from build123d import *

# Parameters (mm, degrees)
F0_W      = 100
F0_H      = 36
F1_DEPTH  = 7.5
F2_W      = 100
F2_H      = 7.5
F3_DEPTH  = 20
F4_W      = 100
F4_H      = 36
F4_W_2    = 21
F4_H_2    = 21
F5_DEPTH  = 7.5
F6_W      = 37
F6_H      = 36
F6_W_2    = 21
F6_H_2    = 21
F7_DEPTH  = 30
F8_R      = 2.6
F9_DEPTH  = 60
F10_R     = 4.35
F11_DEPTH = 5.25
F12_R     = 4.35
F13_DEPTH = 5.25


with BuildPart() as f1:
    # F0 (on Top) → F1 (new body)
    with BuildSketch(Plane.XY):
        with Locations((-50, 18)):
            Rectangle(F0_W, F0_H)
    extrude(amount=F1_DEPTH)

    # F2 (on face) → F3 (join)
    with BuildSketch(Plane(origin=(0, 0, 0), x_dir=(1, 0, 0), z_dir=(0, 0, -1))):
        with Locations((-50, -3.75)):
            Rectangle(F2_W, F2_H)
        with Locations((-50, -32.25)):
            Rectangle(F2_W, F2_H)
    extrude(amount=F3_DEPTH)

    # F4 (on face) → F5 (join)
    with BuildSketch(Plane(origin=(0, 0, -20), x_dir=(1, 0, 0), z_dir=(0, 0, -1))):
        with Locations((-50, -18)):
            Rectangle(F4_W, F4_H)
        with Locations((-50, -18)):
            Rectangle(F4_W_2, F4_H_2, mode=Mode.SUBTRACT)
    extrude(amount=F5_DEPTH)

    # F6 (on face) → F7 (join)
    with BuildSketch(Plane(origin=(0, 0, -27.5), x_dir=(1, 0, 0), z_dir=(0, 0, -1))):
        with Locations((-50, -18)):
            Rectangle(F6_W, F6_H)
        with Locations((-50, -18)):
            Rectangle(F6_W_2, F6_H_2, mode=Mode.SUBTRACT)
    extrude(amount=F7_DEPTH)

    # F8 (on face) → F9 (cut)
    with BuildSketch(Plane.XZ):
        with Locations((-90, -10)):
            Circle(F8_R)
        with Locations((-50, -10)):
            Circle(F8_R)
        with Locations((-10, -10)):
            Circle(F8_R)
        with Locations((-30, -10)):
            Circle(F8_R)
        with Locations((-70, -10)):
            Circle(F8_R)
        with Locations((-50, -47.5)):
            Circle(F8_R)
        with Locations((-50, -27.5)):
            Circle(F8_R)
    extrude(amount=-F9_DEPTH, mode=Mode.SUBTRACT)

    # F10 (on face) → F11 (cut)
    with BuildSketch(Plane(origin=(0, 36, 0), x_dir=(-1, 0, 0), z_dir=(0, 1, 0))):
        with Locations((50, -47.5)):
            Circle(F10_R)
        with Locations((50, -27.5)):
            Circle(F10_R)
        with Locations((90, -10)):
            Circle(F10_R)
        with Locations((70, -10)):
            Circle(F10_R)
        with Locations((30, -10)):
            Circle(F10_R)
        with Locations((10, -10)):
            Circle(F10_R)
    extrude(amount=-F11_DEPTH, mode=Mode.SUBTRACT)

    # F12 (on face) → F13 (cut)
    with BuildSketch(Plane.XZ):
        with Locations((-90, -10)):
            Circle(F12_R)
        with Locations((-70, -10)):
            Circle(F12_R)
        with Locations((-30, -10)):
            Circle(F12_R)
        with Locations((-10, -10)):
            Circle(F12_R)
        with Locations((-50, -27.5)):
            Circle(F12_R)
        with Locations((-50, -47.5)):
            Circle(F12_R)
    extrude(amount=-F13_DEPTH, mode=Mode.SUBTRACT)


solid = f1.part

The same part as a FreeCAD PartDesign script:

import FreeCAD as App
import Part
import Sketcher
Q = App.Units.Quantity


def add_polygon(sketch, points):
    """Adds a closed chain of lines whose ends are joined by coincident constraints."""
    first, n = sketch.GeometryCount, len(points)
    for a, b in zip(points, points[1:] + points[:1]):
        sketch.addGeometry(Part.LineSegment(App.Vector(*a, 0), App.Vector(*b, 0)), False)
    for i in range(n):
        sketch.addConstraint(Sketcher.Constraint("Coincident", first + i, 2, first + (i + 1) % n, 1))

doc = App.newDocument("Part")
body = doc.addObject("PartDesign::Body", "Body")

# Sketch on XY plane
sketch1 = body.newObject("Sketcher::SketchObject", "Sketch")
sketch1.AttachmentSupport = (doc.getObject("XY_Plane"), [""])
sketch1.MapMode = "FlatFace"
add_polygon(sketch1, [(-100, 36), (-100, 0), (0, 0), (0, 36)])  # lines 0-3
sketch1.addConstraint([
    Sketcher.Constraint("Vertical", 0),
    Sketcher.Constraint("Horizontal", 1),
    Sketcher.Constraint("Vertical", 2),
    Sketcher.Constraint("Horizontal", 3),
    Sketcher.Constraint("Coincident", 1, 2, -1, 1),
    Sketcher.Constraint("DistanceX", 1, 1, 1, 2, Q("100 mm")),
    Sketcher.Constraint("DistanceY", 0, 2, 0, 1, Q("36 mm")),
])
pad1 = body.newObject("PartDesign::Pad", "Pad")
pad1.Profile = sketch1
pad1.Length = 7.5

# Sketch on XY plane
sketch2 = body.newObject("Sketcher::SketchObject", "Sketch001")
sketch2.AttachmentSupport = (doc.getObject("XY_Plane"), [""])
sketch2.MapMode = "FlatFace"
add_polygon(sketch2, [(-100, 0), (-100, 7.5), (0, 7.5), (0, 0)])  # lines 0-3
add_polygon(sketch2, [(-100, 28.5), (-100, 36), (0, 36), (0, 28.5)])  # lines 4-7
sketch2.addConstraint([
    Sketcher.Constraint("Vertical", 0),
    Sketcher.Constraint("Horizontal", 1),
    Sketcher.Constraint("Vertical", 2),
    Sketcher.Constraint("Horizontal", 3),
    Sketcher.Constraint("Vertical", 4),
    Sketcher.Constraint("Horizontal", 5),
    Sketcher.Constraint("Vertical", 6),
    Sketcher.Constraint("Horizontal", 7),
    Sketcher.Constraint("Coincident", 2, 2, -1, 1),
    Sketcher.Constraint("PointOnObject", 5, 2, -2),
    Sketcher.Constraint("Vertical", 3, 2, 4, 2),
    Sketcher.Constraint("Equal", 2, 4),
    Sketcher.Constraint("DistanceX", 1, 1, 1, 2, Q("100 mm")),
    Sketcher.Constraint("DistanceY", 0, 1, 0, 2, Q("7.5 mm")),
    Sketcher.Constraint("DistanceY", -1, 1, 4, 2, Q("36 mm")),
])
pad2 = body.newObject("PartDesign::Pad", "Pad001")
pad2.Profile = sketch2
pad2.Length = 20
pad2.Reversed = True

# Sketch on XY plane
sketch3 = body.newObject("Sketcher::SketchObject", "Sketch002")
sketch3.AttachmentSupport = (doc.getObject("XY_Plane"), [""])
sketch3.MapMode = "FlatFace"
sketch3.AttachmentOffset = App.Placement(App.Vector(0, 0, -20), App.Rotation())
add_polygon(sketch3, [(-100, 0), (-100, 36), (0, 36), (0, 0)])  # lines 0-3
add_polygon(sketch3, [(-39.5, 28.5), (-60.5, 28.5), (-60.5, 7.5), (-39.5, 7.5)])  # lines 4-7
sketch3.addConstraint([
    Sketcher.Constraint("Vertical", 0),
    Sketcher.Constraint("Horizontal", 1),
    Sketcher.Constraint("Vertical", 2),
    Sketcher.Constraint("Horizontal", 3),
    Sketcher.Constraint("Horizontal", 4),
    Sketcher.Constraint("Vertical", 5),
    Sketcher.Constraint("Horizontal", 6),
    Sketcher.Constraint("Vertical", 7),
    Sketcher.Constraint("Coincident", 2, 2, -1, 1),
    Sketcher.Constraint("Equal", 6, 5),
    Sketcher.Constraint("DistanceX", 1, 1, 1, 2, Q("100 mm")),
    Sketcher.Constraint("DistanceX", 4, 2, 4, 1, Q("21 mm")),
    Sketcher.Constraint("DistanceY", 0, 1, 0, 2, Q("36 mm")),
    Sketcher.Constraint("DistanceX", 4, 2, -1, 1, Q("60.5 mm")),
    Sketcher.Constraint("DistanceY", -1, 1, 4, 2, Q("28.5 mm")),
])
pad3 = body.newObject("PartDesign::Pad", "Pad002")
pad3.Profile = sketch3
pad3.Length = 7.5
pad3.Reversed = True

# Sketch on XY plane
sketch4 = body.newObject("Sketcher::SketchObject", "Sketch003")
sketch4.AttachmentSupport = (doc.getObject("XY_Plane"), [""])
sketch4.MapMode = "FlatFace"
sketch4.AttachmentOffset = App.Placement(App.Vector(0, 0, -27.5), App.Rotation())
add_polygon(sketch4, [(-68.5, 0), (-68.5, 36), (-31.5, 36), (-31.5, 0)])  # lines 0-3
add_polygon(sketch4, [(-39.5, 28.5), (-60.5, 28.5), (-60.5, 7.5), (-39.5, 7.5)])  # lines 4-7
sketch4.addConstraint([
    Sketcher.Constraint("Vertical", 0),
    Sketcher.Constraint("Horizontal", 1),
    Sketcher.Constraint("Vertical", 2),
    Sketcher.Constraint("Horizontal", 3),
    Sketcher.Constraint("Horizontal", 4),
    Sketcher.Constraint("Vertical", 5),
    Sketcher.Constraint("Horizontal", 6),
    Sketcher.Constraint("Vertical", 7),
    Sketcher.Constraint("PointOnObject", 2, 2, -1),
    Sketcher.Constraint("Equal", 6, 5),
    Sketcher.Constraint("DistanceX", 1, 1, 1, 2, Q("37 mm")),
    Sketcher.Constraint("DistanceX", 4, 2, 4, 1, Q("21 mm")),
    Sketcher.Constraint("DistanceY", 0, 1, 0, 2, Q("36 mm")),
    Sketcher.Constraint("DistanceX", 0, 2, 4, 2, Q("8 mm")),
    Sketcher.Constraint("DistanceX", 0, 2, -1, 1, Q("68.5 mm")),
    Sketcher.Constraint("DistanceY", -1, 1, 4, 2, Q("28.5 mm")),
])
pad4 = body.newObject("PartDesign::Pad", "Pad003")
pad4.Profile = sketch4
pad4.Length = 30
pad4.Reversed = True

# Sketch on XZ plane
sketch5 = body.newObject("Sketcher::SketchObject", "Sketch004")
sketch5.AttachmentSupport = (doc.getObject("XZ_Plane"), [""])
sketch5.MapMode = "FlatFace"
sketch5.addGeometry([
    Part.Circle(App.Vector(-90, -10, 0), App.Vector(0, 0, 1), 2.6),  # 0
    Part.Circle(App.Vector(-50, -10, 0), App.Vector(0, 0, 1), 2.6),  # 1
    Part.Circle(App.Vector(-10, -10, 0), App.Vector(0, 0, 1), 2.6),  # 2
    Part.Circle(App.Vector(-30, -10, 0), App.Vector(0, 0, 1), 2.6),  # 3
    Part.Circle(App.Vector(-70, -10, 0), App.Vector(0, 0, 1), 2.6),  # 4
    Part.Circle(App.Vector(-50, -47.5, 0), App.Vector(0, 0, 1), 2.6),  # 5
    Part.Circle(App.Vector(-50, -27.5, 0), App.Vector(0, 0, 1), 2.6),  # 6
], False)
sketch5.addConstraint([
    Sketcher.Constraint("Equal", 0, 1),
    Sketcher.Constraint("Equal", 1, 2),
    Sketcher.Constraint("Equal", 2, 3),
    Sketcher.Constraint("Equal", 3, 4),
    Sketcher.Constraint("Equal", 4, 5),
    Sketcher.Constraint("Equal", 5, 6),
    Sketcher.Constraint("Horizontal", 0, 3, 1, 3),
    Sketcher.Constraint("Horizontal", 1, 3, 2, 3),
    Sketcher.Constraint("Horizontal", 2, 3, 3, 3),
    Sketcher.Constraint("Horizontal", 3, 3, 4, 3),
    Sketcher.Constraint("Vertical", 1, 3, 5, 3),
    Sketcher.Constraint("Vertical", 5, 3, 6, 3),
    Sketcher.Constraint("Diameter", 0, Q("5.2 mm")),
    Sketcher.Constraint("DistanceX", 0, 3, -1, 1, Q("90 mm")),
    Sketcher.Constraint("DistanceY", 0, 3, -1, 1, Q("10 mm")),
    Sketcher.Constraint("DistanceX", 1, 3, -1, 1, Q("50 mm")),
    Sketcher.Constraint("DistanceX", 2, 3, -1, 1, Q("10 mm")),
    Sketcher.Constraint("DistanceX", 3, 3, -1, 1, Q("30 mm")),
    Sketcher.Constraint("DistanceX", 4, 3, -1, 1, Q("70 mm")),
    Sketcher.Constraint("DistanceY", 5, 3, 6, 3, Q("20 mm")),
    Sketcher.Constraint("DistanceY", 5, 3, -1, 1, Q("47.5 mm")),
])
pocket1 = body.newObject("PartDesign::Pocket", "Pocket")
pocket1.Profile = sketch5
pocket1.Length = 60

# Sketch on XZ plane
sketch6 = body.newObject("Sketcher::SketchObject", "Sketch005")
sketch6.AttachmentSupport = (doc.getObject("XZ_Plane"), [""])
sketch6.MapMode = "FlatFace"
sketch6.AttachmentOffset = App.Placement(App.Vector(0, 0, -36), App.Rotation())
sketch6.addGeometry([
    Part.Circle(App.Vector(-50, -47.5, 0), App.Vector(0, 0, 1), 4.35),  # 0
    Part.Circle(App.Vector(-50, -27.5, 0), App.Vector(0, 0, 1), 4.35),  # 1
    Part.Circle(App.Vector(-90, -10, 0), App.Vector(0, 0, 1), 4.35),  # 2
    Part.Circle(App.Vector(-70, -10, 0), App.Vector(0, 0, 1), 4.35),  # 3
    Part.Circle(App.Vector(-30, -10, 0), App.Vector(0, 0, 1), 4.35),  # 4
    Part.Circle(App.Vector(-10, -10, 0), App.Vector(0, 0, 1), 4.35),  # 5
], False)
sketch6.addConstraint([
    Sketcher.Constraint("Equal", 0, 1),
    Sketcher.Constraint("Equal", 1, 2),
    Sketcher.Constraint("Equal", 2, 3),
    Sketcher.Constraint("Equal", 3, 4),
    Sketcher.Constraint("Equal", 4, 5),
    Sketcher.Constraint("Horizontal", 2, 3, 3, 3),
    Sketcher.Constraint("Horizontal", 3, 3, 4, 3),
    Sketcher.Constraint("Horizontal", 4, 3, 5, 3),
    Sketcher.Constraint("Vertical", 0, 3, 1, 3),
    Sketcher.Constraint("Diameter", 0, Q("8.7 mm")),
    Sketcher.Constraint("DistanceX", 0, 3, -1, 1, Q("50 mm")),
    Sketcher.Constraint("DistanceX", 2, 3, -1, 1, Q("90 mm")),
    Sketcher.Constraint("DistanceY", 2, 3, -1, 1, Q("10 mm")),
    Sketcher.Constraint("DistanceX", 3, 3, -1, 1, Q("70 mm")),
    Sketcher.Constraint("DistanceX", 4, 3, -1, 1, Q("30 mm")),
    Sketcher.Constraint("DistanceX", 5, 3, -1, 1, Q("10 mm")),
    Sketcher.Constraint("DistanceY", 0, 3, 1, 3, Q("20 mm")),
    Sketcher.Constraint("DistanceY", 0, 3, -1, 1, Q("47.5 mm")),
])
pocket2 = body.newObject("PartDesign::Pocket", "Pocket001")
pocket2.Profile = sketch6
pocket2.Length = 5.25
pocket2.Reversed = True

# Sketch on XZ plane
sketch7 = body.newObject("Sketcher::SketchObject", "Sketch006")
sketch7.AttachmentSupport = (doc.getObject("XZ_Plane"), [""])
sketch7.MapMode = "FlatFace"
sketch7.addGeometry([
    Part.Circle(App.Vector(-90, -10, 0), App.Vector(0, 0, 1), 4.35),  # 0
    Part.Circle(App.Vector(-70, -10, 0), App.Vector(0, 0, 1), 4.35),  # 1
    Part.Circle(App.Vector(-30, -10, 0), App.Vector(0, 0, 1), 4.35),  # 2
    Part.Circle(App.Vector(-10, -10, 0), App.Vector(0, 0, 1), 4.35),  # 3
    Part.Circle(App.Vector(-50, -27.5, 0), App.Vector(0, 0, 1), 4.35),  # 4
    Part.Circle(App.Vector(-50, -47.5, 0), App.Vector(0, 0, 1), 4.35),  # 5
], False)
sketch7.addConstraint([
    Sketcher.Constraint("Equal", 0, 1),
    Sketcher.Constraint("Equal", 1, 2),
    Sketcher.Constraint("Equal", 2, 3),
    Sketcher.Constraint("Equal", 3, 4),
    Sketcher.Constraint("Equal", 4, 5),
    Sketcher.Constraint("Horizontal", 0, 3, 1, 3),
    Sketcher.Constraint("Horizontal", 1, 3, 2, 3),
    Sketcher.Constraint("Horizontal", 2, 3, 3, 3),
    Sketcher.Constraint("Vertical", 4, 3, 5, 3),
    Sketcher.Constraint("Diameter", 0, Q("8.7 mm")),
    Sketcher.Constraint("DistanceX", 0, 3, -1, 1, Q("90 mm")),
    Sketcher.Constraint("DistanceY", 0, 3, -1, 1, Q("10 mm")),
    Sketcher.Constraint("DistanceX", 1, 3, -1, 1, Q("70 mm")),
    Sketcher.Constraint("DistanceX", 2, 3, -1, 1, Q("30 mm")),
    Sketcher.Constraint("DistanceX", 3, 3, -1, 1, Q("10 mm")),
    Sketcher.Constraint("DistanceX", 4, 3, -1, 1, Q("50 mm")),
    Sketcher.Constraint("DistanceY", 5, 3, 4, 3, Q("20 mm")),
    Sketcher.Constraint("DistanceY", 4, 3, -1, 1, Q("27.5 mm")),
])
pocket3 = body.newObject("PartDesign::Pocket", "Pocket002")
pocket3.Profile = sketch7
pocket3.Length = 5.25

doc.recompute()
